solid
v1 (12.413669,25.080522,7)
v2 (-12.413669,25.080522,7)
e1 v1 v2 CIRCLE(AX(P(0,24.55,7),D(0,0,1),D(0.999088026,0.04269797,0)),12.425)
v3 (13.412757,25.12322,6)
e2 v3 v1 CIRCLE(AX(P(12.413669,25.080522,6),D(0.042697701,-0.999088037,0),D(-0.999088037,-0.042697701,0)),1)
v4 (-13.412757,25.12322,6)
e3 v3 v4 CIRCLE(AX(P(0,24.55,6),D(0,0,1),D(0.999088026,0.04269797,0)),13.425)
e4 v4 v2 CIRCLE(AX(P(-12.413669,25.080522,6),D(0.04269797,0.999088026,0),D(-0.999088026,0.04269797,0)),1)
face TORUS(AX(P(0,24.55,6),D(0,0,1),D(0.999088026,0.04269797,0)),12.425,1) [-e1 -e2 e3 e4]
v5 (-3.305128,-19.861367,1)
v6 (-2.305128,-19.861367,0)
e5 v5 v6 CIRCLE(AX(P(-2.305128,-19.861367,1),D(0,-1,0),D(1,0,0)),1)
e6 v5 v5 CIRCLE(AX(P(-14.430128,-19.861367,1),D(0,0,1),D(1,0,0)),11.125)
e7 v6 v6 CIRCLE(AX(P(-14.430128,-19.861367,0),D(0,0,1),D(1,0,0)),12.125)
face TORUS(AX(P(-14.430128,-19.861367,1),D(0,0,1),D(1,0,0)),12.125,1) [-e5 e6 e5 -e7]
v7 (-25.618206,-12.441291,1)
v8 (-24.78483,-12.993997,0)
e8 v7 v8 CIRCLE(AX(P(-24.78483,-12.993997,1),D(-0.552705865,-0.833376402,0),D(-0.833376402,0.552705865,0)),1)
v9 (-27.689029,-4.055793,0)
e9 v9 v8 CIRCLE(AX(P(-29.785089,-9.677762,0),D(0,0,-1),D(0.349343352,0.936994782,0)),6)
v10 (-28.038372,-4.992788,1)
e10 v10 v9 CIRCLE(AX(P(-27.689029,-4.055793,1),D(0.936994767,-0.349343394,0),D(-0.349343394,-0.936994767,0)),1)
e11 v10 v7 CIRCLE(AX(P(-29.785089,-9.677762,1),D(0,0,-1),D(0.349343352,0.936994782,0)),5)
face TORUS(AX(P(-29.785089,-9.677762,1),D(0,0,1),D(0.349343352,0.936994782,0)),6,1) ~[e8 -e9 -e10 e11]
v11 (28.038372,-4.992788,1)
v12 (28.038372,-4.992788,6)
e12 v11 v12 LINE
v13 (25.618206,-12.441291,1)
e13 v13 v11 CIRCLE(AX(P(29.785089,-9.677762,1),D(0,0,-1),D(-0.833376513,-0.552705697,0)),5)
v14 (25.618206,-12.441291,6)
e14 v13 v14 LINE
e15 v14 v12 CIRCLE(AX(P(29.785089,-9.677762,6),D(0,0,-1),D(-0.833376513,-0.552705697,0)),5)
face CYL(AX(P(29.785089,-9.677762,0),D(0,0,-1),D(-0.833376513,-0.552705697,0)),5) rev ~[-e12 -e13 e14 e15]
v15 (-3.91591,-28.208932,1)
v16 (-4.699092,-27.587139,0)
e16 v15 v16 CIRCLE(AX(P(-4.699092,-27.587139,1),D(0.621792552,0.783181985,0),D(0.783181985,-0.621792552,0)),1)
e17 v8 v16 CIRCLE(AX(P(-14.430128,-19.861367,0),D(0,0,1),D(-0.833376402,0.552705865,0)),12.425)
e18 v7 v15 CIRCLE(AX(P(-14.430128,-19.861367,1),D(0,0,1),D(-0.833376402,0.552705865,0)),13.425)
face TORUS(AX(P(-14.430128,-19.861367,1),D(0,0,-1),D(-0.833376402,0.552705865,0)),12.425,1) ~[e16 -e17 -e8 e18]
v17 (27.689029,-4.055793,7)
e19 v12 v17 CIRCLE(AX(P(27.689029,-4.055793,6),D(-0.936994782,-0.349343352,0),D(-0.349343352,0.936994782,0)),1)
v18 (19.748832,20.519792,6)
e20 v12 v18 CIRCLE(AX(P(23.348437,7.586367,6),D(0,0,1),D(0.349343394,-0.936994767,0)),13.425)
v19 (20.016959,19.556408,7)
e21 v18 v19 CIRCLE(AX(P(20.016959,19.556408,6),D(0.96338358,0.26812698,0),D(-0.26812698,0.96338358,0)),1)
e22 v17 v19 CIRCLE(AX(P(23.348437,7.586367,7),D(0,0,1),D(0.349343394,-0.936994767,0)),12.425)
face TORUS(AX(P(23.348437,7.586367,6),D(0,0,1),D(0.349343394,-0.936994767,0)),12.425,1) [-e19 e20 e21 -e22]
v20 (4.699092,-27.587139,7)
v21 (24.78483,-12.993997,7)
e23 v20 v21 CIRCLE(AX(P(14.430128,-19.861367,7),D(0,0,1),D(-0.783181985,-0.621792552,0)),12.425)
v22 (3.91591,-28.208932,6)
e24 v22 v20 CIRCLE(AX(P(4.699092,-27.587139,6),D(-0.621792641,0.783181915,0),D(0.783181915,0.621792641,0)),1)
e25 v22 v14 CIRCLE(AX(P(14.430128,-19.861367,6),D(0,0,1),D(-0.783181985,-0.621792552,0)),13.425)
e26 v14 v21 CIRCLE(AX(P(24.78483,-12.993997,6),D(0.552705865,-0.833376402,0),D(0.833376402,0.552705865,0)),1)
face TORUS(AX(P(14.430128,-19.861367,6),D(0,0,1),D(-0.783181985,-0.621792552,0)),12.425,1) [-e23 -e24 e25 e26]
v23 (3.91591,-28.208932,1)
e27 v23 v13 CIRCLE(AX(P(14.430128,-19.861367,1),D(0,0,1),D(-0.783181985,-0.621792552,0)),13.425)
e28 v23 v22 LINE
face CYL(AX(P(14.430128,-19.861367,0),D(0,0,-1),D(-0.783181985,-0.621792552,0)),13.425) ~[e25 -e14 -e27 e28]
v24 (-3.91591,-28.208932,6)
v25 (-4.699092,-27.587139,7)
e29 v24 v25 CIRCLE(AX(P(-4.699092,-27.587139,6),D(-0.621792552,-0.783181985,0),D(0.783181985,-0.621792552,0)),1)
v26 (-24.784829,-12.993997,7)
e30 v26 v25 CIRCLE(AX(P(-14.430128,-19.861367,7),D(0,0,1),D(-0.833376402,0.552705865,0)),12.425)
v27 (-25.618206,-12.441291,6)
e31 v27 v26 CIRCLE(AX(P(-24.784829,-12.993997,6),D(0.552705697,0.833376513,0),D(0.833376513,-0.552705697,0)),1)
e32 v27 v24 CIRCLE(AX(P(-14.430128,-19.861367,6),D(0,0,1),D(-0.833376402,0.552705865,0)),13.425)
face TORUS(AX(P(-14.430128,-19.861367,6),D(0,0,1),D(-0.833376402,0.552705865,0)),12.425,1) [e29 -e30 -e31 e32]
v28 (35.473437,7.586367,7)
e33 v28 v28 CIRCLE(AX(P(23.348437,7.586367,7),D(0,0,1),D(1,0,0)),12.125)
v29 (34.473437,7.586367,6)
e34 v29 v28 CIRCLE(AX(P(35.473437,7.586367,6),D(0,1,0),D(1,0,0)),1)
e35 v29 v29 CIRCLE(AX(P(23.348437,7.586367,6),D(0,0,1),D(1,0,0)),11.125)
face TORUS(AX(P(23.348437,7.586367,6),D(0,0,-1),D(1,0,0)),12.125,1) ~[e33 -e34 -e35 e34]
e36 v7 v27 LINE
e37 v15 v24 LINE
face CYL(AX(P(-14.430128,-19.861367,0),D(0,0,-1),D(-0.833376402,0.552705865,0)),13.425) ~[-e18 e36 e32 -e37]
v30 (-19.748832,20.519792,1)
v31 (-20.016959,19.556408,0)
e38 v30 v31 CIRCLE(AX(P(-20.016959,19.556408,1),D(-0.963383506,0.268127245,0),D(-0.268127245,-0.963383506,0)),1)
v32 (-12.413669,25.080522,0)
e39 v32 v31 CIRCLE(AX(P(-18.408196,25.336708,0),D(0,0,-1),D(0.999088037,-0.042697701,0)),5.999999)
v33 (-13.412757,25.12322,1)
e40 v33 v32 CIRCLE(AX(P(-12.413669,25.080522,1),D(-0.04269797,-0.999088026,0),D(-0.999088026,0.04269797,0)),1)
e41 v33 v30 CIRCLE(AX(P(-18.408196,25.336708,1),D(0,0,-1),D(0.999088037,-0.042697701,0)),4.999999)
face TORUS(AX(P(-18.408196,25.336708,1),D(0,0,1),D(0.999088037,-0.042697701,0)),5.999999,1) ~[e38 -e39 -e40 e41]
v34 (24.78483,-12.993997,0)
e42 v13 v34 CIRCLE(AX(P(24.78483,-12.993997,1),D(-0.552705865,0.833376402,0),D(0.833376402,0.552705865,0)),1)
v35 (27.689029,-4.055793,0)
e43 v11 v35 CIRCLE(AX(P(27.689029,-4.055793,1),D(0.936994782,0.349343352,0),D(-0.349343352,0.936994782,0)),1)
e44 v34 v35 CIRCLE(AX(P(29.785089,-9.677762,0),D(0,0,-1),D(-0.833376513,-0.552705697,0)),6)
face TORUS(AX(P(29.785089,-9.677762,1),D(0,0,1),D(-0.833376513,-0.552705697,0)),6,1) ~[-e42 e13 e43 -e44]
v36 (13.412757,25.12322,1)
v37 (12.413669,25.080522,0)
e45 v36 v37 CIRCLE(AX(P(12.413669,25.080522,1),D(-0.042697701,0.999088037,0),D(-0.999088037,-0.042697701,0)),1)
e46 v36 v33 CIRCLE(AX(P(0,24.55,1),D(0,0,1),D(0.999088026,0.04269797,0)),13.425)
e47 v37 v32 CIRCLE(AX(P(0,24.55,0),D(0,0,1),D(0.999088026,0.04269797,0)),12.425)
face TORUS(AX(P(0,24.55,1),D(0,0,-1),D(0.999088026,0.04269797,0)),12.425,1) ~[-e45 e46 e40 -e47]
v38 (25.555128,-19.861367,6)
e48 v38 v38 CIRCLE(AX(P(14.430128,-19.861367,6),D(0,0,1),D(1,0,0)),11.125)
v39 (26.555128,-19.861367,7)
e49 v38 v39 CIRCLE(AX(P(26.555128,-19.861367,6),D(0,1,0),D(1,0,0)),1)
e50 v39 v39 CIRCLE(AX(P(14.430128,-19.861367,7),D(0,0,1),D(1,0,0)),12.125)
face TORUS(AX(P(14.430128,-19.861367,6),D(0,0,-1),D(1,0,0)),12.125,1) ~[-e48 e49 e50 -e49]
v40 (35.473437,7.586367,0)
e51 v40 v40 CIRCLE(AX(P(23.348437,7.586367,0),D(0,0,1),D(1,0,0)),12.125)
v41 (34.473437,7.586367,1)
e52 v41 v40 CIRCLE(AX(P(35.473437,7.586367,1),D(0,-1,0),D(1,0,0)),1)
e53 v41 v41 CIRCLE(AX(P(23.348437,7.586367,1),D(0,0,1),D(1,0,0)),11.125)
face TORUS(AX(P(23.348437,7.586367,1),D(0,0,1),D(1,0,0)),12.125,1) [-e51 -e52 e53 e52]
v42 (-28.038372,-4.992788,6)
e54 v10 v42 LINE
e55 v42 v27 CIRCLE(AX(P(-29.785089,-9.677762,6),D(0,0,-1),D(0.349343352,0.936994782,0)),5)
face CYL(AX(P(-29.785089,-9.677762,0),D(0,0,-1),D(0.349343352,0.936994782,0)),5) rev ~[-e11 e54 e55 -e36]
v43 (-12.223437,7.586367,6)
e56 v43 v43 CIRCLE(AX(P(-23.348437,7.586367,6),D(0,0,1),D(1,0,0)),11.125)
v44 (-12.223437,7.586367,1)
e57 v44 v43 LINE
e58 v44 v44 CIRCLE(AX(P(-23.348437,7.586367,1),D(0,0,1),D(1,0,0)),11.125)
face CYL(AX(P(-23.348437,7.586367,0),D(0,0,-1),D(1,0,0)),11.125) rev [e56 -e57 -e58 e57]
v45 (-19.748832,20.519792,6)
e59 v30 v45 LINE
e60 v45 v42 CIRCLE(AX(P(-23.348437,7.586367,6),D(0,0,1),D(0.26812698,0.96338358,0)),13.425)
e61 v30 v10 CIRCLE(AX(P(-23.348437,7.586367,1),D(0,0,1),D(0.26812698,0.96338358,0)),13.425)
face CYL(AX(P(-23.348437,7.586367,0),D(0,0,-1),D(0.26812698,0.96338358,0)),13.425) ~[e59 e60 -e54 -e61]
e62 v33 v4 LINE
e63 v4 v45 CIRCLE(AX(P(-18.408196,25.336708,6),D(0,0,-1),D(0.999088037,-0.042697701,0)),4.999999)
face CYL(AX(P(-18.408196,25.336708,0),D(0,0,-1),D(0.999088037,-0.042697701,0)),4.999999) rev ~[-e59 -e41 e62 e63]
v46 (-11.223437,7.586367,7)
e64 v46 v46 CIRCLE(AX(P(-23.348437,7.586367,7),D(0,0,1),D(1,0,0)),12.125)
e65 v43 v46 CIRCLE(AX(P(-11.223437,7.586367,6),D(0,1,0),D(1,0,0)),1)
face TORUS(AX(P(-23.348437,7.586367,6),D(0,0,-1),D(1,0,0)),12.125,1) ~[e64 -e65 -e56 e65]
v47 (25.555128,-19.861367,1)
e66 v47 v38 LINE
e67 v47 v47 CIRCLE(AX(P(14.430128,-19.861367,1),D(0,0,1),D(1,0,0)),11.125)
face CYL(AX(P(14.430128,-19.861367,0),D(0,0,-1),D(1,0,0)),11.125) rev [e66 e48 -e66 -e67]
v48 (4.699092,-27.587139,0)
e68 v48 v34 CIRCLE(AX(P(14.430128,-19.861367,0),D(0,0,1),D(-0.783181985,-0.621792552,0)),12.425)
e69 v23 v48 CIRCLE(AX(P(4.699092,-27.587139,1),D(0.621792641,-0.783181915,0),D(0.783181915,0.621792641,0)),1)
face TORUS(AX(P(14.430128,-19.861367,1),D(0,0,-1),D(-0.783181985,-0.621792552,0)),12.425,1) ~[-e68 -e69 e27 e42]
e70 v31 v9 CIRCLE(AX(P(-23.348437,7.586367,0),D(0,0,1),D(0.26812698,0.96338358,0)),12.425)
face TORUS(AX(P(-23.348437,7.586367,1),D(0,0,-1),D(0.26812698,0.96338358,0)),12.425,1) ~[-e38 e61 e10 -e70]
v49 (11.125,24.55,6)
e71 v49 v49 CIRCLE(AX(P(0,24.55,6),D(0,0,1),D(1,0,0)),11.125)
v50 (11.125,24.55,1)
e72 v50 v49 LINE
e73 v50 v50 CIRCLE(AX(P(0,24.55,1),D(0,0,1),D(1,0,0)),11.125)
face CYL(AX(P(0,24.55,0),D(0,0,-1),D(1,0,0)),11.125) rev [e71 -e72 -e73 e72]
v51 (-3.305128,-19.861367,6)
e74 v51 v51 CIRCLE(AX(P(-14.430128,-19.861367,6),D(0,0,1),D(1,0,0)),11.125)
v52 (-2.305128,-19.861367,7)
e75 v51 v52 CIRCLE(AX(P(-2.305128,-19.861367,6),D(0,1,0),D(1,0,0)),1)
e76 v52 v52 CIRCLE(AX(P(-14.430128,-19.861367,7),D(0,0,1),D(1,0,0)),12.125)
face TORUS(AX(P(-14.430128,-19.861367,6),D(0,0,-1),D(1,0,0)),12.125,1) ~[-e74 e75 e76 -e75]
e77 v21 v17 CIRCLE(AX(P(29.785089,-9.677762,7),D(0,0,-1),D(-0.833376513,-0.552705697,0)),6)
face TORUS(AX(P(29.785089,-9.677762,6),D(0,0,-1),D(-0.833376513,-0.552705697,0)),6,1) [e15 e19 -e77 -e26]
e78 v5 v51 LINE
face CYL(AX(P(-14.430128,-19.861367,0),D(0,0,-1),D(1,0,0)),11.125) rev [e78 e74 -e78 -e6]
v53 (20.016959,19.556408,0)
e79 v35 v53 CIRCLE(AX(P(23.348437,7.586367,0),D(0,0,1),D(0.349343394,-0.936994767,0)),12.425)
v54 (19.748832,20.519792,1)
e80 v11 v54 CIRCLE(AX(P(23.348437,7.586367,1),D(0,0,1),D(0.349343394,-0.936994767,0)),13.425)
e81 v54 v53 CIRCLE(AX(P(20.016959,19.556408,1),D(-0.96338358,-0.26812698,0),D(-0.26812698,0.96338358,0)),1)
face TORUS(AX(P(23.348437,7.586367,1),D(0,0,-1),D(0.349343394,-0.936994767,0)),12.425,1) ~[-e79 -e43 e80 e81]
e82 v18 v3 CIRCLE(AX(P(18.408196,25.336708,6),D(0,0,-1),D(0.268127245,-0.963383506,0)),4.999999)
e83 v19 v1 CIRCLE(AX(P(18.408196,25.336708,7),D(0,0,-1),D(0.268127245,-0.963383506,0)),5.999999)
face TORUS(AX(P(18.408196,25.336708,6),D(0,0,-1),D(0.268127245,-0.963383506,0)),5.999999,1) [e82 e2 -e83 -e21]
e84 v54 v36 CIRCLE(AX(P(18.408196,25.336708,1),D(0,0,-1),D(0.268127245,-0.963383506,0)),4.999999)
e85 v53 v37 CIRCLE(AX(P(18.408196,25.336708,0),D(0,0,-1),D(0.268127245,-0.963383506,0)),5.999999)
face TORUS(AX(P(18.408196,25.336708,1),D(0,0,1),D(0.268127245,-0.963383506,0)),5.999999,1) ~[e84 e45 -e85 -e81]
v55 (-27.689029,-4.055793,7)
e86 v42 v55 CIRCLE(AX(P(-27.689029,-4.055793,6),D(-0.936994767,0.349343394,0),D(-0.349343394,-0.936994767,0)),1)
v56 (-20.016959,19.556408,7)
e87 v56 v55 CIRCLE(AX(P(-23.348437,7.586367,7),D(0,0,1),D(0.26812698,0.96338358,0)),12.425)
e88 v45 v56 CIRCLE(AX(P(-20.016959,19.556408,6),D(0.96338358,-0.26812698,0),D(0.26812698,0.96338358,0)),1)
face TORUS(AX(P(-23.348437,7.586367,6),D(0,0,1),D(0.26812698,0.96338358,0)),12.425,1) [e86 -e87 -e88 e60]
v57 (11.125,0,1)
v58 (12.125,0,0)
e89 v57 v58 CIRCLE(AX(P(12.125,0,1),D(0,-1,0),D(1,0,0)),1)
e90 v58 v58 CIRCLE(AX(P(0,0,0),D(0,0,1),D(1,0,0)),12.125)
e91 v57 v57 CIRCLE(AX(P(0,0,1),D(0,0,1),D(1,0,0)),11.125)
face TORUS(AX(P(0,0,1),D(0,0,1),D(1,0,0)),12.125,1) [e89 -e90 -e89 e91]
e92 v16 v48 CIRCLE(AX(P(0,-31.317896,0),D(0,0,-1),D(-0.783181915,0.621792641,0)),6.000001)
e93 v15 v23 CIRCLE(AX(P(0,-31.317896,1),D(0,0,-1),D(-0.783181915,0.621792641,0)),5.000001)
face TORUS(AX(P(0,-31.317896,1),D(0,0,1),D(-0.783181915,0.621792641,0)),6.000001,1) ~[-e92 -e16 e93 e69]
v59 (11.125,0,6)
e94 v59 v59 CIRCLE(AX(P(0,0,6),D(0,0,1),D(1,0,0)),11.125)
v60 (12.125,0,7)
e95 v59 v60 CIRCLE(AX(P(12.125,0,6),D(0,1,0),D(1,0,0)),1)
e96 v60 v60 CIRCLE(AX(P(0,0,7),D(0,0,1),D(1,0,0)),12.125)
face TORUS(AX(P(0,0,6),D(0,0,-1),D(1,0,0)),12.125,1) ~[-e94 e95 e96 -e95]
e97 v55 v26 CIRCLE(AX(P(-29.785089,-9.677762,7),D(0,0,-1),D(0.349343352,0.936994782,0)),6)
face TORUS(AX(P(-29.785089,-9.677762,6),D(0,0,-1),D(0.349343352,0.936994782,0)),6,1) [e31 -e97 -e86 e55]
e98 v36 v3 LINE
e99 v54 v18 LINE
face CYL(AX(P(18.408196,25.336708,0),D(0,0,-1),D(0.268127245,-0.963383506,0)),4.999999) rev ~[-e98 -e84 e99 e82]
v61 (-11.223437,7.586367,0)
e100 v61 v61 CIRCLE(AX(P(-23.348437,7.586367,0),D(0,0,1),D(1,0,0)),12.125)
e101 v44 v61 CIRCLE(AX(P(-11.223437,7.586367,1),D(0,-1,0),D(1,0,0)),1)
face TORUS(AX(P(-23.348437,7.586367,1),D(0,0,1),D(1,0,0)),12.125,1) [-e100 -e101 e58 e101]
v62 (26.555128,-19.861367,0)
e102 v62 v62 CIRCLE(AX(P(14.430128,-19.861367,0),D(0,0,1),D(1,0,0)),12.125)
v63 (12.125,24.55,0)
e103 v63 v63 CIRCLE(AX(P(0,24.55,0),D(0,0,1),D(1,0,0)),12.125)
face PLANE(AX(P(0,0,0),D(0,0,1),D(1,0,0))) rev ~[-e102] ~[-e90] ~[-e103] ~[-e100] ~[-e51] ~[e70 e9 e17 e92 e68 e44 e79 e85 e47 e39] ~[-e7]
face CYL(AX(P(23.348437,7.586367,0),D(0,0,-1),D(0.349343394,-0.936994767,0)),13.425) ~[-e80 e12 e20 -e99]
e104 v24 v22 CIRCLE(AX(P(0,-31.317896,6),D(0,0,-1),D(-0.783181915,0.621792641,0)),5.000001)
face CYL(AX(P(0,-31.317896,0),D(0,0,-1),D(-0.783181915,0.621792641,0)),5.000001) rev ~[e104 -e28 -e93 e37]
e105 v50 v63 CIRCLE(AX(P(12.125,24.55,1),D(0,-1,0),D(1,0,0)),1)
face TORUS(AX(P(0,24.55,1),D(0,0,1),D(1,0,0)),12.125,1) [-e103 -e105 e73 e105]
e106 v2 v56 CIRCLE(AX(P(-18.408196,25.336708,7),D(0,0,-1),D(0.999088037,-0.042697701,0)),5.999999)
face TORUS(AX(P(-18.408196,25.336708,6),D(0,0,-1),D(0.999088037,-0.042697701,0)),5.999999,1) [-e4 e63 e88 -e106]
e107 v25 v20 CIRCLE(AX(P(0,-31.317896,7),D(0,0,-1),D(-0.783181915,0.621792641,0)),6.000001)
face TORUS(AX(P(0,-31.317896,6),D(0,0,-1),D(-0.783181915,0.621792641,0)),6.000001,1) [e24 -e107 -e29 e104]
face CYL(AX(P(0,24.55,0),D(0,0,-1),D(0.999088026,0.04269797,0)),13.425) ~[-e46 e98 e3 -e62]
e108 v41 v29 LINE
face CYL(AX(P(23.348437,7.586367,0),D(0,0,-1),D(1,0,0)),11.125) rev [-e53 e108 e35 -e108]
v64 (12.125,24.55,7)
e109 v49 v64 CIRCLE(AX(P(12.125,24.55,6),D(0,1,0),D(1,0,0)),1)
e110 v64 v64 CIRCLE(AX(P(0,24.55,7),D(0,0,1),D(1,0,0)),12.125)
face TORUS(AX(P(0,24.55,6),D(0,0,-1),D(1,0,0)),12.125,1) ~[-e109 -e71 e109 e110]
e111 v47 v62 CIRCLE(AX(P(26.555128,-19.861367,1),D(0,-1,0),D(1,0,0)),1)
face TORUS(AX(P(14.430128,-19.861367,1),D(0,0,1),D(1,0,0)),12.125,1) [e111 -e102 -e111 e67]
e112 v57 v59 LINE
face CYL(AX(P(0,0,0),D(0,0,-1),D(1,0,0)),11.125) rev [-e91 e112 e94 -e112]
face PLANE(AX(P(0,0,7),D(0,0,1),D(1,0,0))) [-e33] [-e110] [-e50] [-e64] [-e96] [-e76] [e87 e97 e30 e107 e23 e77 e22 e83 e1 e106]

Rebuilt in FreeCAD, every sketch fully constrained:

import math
import FreeCAD as App
import Part
import Sketcher


def edges_at(feature, points):
    """Names of the edges that pass closest to the given points."""
    edges = feature.Shape.Edges
    near = lambda p: min(range(len(edges)), key=lambda i: edges[i].distToShape(Part.Vertex(*p))[0])
    return sorted({f"Edge{near(p) + 1}" for p in points})

doc = App.newDocument("Part")
params = doc.addObject("Spreadsheet::Sheet", "Params")
for row, (alias, value) in enumerate([
    ("sketch1_radius", "4.999999 mm"),
    ("sketch1_diameter", "22.25 mm"),
    ("pad1_length", "7 mm"),
    ("fillet_radius", "1 mm"),
], start=1):
    params.set(f"A{row}", alias)
    params.set(f"B{row}", "=" + value)
    params.setAlias(f"B{row}", alias)

body = doc.addObject("PartDesign::Body", "Body")

sketch1 = body.newObject("Sketcher::SketchObject", "Sketch")
sketch1.AttachmentSupport = (doc.getObject("XY_Plane"), [""])
sketch1.MapMode = "FlatFace"
sketch1.addGeometry(Part.ArcOfCircle(Part.Circle(App.Vector(18.4, 25.3, 0), App.Vector(0, 0, 1), 5), math.radians(-178), math.radians(-74)), False)
sketch1.addGeometry(Part.ArcOfCircle(Part.Circle(App.Vector(0, 24.5, 0), App.Vector(0, 0, 1), 13.4), math.radians(2), math.radians(178)), False)
sketch1.addGeometry(Part.ArcOfCircle(Part.Circle(App.Vector(-18.4, 25.3, 0), App.Vector(0, 0, 1), 5), math.radians(-106), math.radians(-2)), False)
sketch1.addGeometry(Part.ArcOfCircle(Part.Circle(App.Vector(-23.3, 7.6, 0), App.Vector(0, 0, 1), 13.4), math.radians(74), math.radians(250)), False)
sketch1.addGeometry(Part.ArcOfCircle(Part.Circle(App.Vector(-29.8, -9.7, 0), App.Vector(0, 0, 1), 5), math.radians(-34), math.radians(70)), False)
sketch1.addGeometry(Part.ArcOfCircle(Part.Circle(App.Vector(-14.4, -19.9, 0), App.Vector(0, 0, 1), 13.4), math.radians(146), math.radians(322)), False)
sketch1.addGeometry(Part.ArcOfCircle(Part.Circle(App.Vector(0, -31.3, 0), App.Vector(0, 0, 1), 5), math.radians(38), math.radians(142)), False)
sketch1.addGeometry(Part.ArcOfCircle(Part.Circle(App.Vector(14.4, -19.9, 0), App.Vector(0, 0, 1), 13.4), math.radians(-142), math.radians(34)), False)
sketch1.addGeometry(Part.ArcOfCircle(Part.Circle(App.Vector(29.8, -9.7, 0), App.Vector(0, 0, 1), 5), math.radians(110), math.radians(214)), False)
sketch1.addGeometry(Part.ArcOfCircle(Part.Circle(App.Vector(23.3, 7.6, 0), App.Vector(0, 0, 1), 13.4), math.radians(-70), math.radians(106)), False)
sketch1.addGeometry(Part.Circle(App.Vector(-14.4, -19.9, 0), App.Vector(0, 0, 1), 11.1), False)
sketch1.addGeometry(Part.Circle(App.Vector(0, 0, 0), App.Vector(0, 0, 1), 11.1), False)
sketch1.addGeometry(Part.Circle(App.Vector(14.4, -19.9, 0), App.Vector(0, 0, 1), 11.1), False)
sketch1.addGeometry(Part.Circle(App.Vector(-23.3, 7.6, 0), App.Vector(0, 0, 1), 11.1), False)
sketch1.addGeometry(Part.Circle(App.Vector(0, 24.6, 0), App.Vector(0, 0, 1), 11.1), False)
sketch1.addGeometry(Part.Circle(App.Vector(23.3, 7.6, 0), App.Vector(0, 0, 1), 11.1), False)
sketch1.addConstraint(Sketcher.Constraint("Tangent", 0, 1, 1, 1))
sketch1.addConstraint(Sketcher.Constraint("Tangent", 1, 2, 2, 2))
sketch1.addConstraint(Sketcher.Constraint("Tangent", 2, 1, 3, 1))
sketch1.addConstraint(Sketcher.Constraint("Tangent", 3, 2, 4, 2))
sketch1.addConstraint(Sketcher.Constraint("Tangent", 4, 1, 5, 1))
sketch1.addConstraint(Sketcher.Constraint("Tangent", 5, 2, 6, 2))
sketch1.addConstraint(Sketcher.Constraint("Tangent", 6, 1, 7, 1))
sketch1.addConstraint(Sketcher.Constraint("Tangent", 7, 2, 8, 2))
sketch1.addConstraint(Sketcher.Constraint("Tangent", 8, 1, 9, 1))
sketch1.addConstraint(Sketcher.Constraint("Tangent", 9, 2, 0, 2))
sketch1.addConstraint(Sketcher.Constraint("Coincident", 11, 3, -1, 1))
sketch1.addConstraint(Sketcher.Constraint("Coincident", 10, 3, 5, 3))
sketch1.addConstraint(Sketcher.Constraint("Coincident", 12, 3, 7, 3))
sketch1.addConstraint(Sketcher.Constraint("Coincident", 13, 3, 3, 3))
sketch1.addConstraint(Sketcher.Constraint("Coincident", 14, 3, 1, 3))
sketch1.addConstraint(Sketcher.Constraint("Coincident", 15, 3, 9, 3))
sketch1.addConstraint(Sketcher.Constraint("Equal", 0, 2))
sketch1.addConstraint(Sketcher.Constraint("Equal", 1, 3))
sketch1.addConstraint(Sketcher.Constraint("Equal", 2, 4))
sketch1.addConstraint(Sketcher.Constraint("Equal", 3, 5))
sketch1.addConstraint(Sketcher.Constraint("Equal", 4, 6))
sketch1.addConstraint(Sketcher.Constraint("Equal", 5, 7))
sketch1.addConstraint(Sketcher.Constraint("Equal", 6, 8))
sketch1.addConstraint(Sketcher.Constraint("Equal", 7, 9))
sketch1.addConstraint(Sketcher.Constraint("Equal", 10, 11))
sketch1.addConstraint(Sketcher.Constraint("Equal", 11, 12))
sketch1.addConstraint(Sketcher.Constraint("Equal", 12, 13))
sketch1.addConstraint(Sketcher.Constraint("Equal", 13, 14))
sketch1.addConstraint(Sketcher.Constraint("Equal", 14, 15))
sketch1.addConstraint(Sketcher.Constraint("Symmetric", 0, 3, 2, 3, -2))
sketch1.addConstraint(Sketcher.Constraint("Symmetric", 5, 3, 7, 3, -2))
sketch1.addConstraint(Sketcher.Constraint("Horizontal", 4, 3, 8, 3))
sketch1.addConstraint(Sketcher.Constraint("Radius", 0, 4.999999))
sketch1.addConstraint(Sketcher.Constraint("Diameter", 10, 22.25))
sketch1.addConstraint(Sketcher.Constraint("Radius", 1, 13.425))
sketch1.addConstraint(Sketcher.Constraint("DistanceY", -1, 1, 1, 3, 24.55))
sketch1.addConstraint(Sketcher.Constraint("DistanceY", -1, 1, 0, 3, 25.336708))
sketch1.addConstraint(Sketcher.Constraint("DistanceX", 4, 3, -1, 1, 29.785089))
sketch1.addConstraint(Sketcher.Constraint("DistanceY", -1, 1, 2, 1, 20.519792))
sketch1.addConstraint(Sketcher.Constraint("DistanceY", 4, 1, -1, 1, 12.441291))
sketch1.setExpression("Constraints[32]", "Params.sketch1_radius")
sketch1.setExpression("Constraints[33]", "Params.sketch1_diameter")
pad1 = body.newObject("PartDesign::Pad", "Pad")
pad1.Profile = sketch1
pad1.setExpression("Length", "Params.pad1_length")
doc.recompute()

fillet = body.newObject("PartDesign::Fillet", "Fillet")
fillet.Base = (pad1, edges_at(pad1, [
    (-36.116, 11.735, 7),
    (-22.321, -30.722, 0),
    (-25.555, -19.861, 7),
    (-34.473, 7.586, 7),
    (-11.125, 24.55, 0),
    (-11.125, 24.55, 7),
    (-34.473, 7.586, 0),
    (-25.555, -19.861, 0),
    (-11.125, 0, 0),
    (-11.125, 0, 7),
    (12.223, 7.586, 0),
    (12.223, 7.586, 7),
    (3.305, -19.861, 0),
    (3.305, -19.861, 7),
]))
fillet.setExpression("Radius", "Params.fillet_radius")

doc.recompute()
